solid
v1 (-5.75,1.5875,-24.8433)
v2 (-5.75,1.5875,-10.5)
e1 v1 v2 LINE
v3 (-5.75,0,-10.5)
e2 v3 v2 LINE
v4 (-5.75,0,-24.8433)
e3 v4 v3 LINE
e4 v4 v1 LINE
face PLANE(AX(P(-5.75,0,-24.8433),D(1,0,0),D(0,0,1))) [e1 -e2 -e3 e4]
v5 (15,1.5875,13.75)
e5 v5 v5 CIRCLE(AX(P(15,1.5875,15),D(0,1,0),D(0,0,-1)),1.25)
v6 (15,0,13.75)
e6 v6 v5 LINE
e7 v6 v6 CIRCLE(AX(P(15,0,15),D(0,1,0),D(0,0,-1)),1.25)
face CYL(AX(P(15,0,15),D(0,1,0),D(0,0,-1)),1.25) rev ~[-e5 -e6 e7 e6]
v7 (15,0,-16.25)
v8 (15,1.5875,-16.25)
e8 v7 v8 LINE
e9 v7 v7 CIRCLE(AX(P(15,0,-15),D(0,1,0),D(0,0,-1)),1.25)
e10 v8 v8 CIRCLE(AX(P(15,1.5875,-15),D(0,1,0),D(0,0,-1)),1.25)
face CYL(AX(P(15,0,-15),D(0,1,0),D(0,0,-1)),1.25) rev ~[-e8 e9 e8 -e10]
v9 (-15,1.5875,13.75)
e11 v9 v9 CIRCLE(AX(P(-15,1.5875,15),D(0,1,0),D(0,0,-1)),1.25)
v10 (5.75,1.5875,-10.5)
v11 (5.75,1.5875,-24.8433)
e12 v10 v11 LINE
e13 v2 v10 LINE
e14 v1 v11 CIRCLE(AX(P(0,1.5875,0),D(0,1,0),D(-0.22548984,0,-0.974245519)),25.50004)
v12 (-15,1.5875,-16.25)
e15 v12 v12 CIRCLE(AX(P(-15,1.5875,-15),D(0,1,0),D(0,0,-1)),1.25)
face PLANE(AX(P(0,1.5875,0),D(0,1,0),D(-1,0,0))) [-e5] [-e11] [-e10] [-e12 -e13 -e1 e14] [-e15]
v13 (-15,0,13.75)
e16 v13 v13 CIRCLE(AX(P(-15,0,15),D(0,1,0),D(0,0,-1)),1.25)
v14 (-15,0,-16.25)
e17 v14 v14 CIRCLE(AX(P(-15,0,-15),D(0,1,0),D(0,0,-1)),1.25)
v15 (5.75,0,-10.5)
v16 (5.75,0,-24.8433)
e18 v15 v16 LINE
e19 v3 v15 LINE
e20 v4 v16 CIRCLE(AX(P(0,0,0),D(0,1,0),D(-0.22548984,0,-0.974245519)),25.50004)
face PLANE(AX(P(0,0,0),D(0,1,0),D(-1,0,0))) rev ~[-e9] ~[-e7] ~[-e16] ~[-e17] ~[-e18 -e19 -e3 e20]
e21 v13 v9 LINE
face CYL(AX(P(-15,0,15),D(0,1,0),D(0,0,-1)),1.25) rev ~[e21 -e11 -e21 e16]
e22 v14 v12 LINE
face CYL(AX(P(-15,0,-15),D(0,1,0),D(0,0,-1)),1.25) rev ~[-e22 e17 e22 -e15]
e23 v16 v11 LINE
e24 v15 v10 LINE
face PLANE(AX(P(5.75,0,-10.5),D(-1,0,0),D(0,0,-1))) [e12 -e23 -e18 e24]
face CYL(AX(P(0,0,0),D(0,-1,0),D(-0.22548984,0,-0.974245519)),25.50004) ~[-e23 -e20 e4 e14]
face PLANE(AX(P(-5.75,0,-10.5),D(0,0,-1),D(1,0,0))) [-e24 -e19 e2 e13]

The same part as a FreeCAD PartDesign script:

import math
import FreeCAD as App
import Part
import Sketcher
from FreeCAD import Vector

doc = App.newDocument("Part")
body = doc.addObject("PartDesign::Body", "Body")

# Sketch on XZ plane
sketch1 = doc.addObject("Sketcher::SketchObject", "Sketch")
body.addObject(sketch1)
sketch1.AttachmentSupport = (doc.XZ_Plane, [""])
sketch1.MapMode = "FlatFace"
sketch1.addGeometry([
    Part.LineSegment(Vector(-6, -10, 0), Vector(-6, -25, 0)),
    Part.ArcOfCircle(Part.Circle(Vector(0, 0, 0), Vector(0, 0, 1), 26), math.radians(-77), math.radians(257)),
    Part.LineSegment(Vector(6, -25, 0), Vector(6, -10, 0)),
    Part.LineSegment(Vector(6, -10, 0), Vector(-6, -10, 0)),
], False)
sketch1.addConstraint([
    Sketcher.Constraint("Coincident", 0, 2, 1, 2),
    Sketcher.Constraint("Coincident", 1, 1, 2, 1),
    Sketcher.Constraint("Coincident", 2, 2, 3, 1),
    Sketcher.Constraint("Coincident", 3, 2, 0, 1),
    Sketcher.Constraint("Vertical", 0),
    Sketcher.Constraint("Vertical", 2),
    Sketcher.Constraint("Horizontal", 3),
    Sketcher.Constraint("Coincident", 1, 3, -1, 1),
    Sketcher.Constraint("Horizontal", 0, 2, 1, 1),
    Sketcher.Constraint("Radius", 1, 25.5),
    Sketcher.Constraint("DistanceX", 3, 2, 3, 1, 11.5),
    Sketcher.Constraint("DistanceY", 2, 2, -1, 1, 10.5),
])
pad1 = doc.addObject("PartDesign::Pad", "Pad")
body.addObject(pad1)
pad1.Profile = sketch1
pad1.Length = 1.5875
pad1.Reversed = True

# Sketch on XZ plane
sketch2 = doc.addObject("Sketcher::SketchObject", "Sketch001")
body.addObject(sketch2)
sketch2.AttachmentSupport = (doc.XZ_Plane, [""])
sketch2.MapMode = "FlatFace"
sketch2.addGeometry([
    Part.Circle(Vector(15, -15, 0), Vector(0, 0, 1), 1.2),
    Part.Circle(Vector(-15, -15, 0), Vector(0, 0, 1), 1.2),
    Part.Circle(Vector(-15, 15, 0), Vector(0, 0, 1), 1.2),
    Part.Circle(Vector(15, 15, 0), Vector(0, 0, 1), 1.2),
], False)
sketch2.addConstraint([
    Sketcher.Constraint("Equal", 0, 1),
    Sketcher.Constraint("Equal", 1, 2),
    Sketcher.Constraint("Equal", 2, 3),
    Sketcher.Constraint("Symmetric", 0, 3, 2, 3, -1, 1),
    Sketcher.Constraint("Symmetric", 1, 3, 3, 3, -1, 1),
    Sketcher.Constraint("Symmetric", 0, 3, 1, 3, -2),
    Sketcher.Constraint("Diameter", 0, 2.5),
    Sketcher.Constraint("DistanceX", -1, 1, 0, 3, 15.0),
    Sketcher.Constraint("DistanceY", 0, 3, -1, 1, 15.0),
])
doc.recompute()
hole = doc.addObject("PartDesign::Hole", "Hole")
body.addObject(hole)
hole.Profile = sketch2
hole.ThreadType = "None"
hole.Diameter = 2.5
hole.DepthType = "ThroughAll"

doc.recompute()
